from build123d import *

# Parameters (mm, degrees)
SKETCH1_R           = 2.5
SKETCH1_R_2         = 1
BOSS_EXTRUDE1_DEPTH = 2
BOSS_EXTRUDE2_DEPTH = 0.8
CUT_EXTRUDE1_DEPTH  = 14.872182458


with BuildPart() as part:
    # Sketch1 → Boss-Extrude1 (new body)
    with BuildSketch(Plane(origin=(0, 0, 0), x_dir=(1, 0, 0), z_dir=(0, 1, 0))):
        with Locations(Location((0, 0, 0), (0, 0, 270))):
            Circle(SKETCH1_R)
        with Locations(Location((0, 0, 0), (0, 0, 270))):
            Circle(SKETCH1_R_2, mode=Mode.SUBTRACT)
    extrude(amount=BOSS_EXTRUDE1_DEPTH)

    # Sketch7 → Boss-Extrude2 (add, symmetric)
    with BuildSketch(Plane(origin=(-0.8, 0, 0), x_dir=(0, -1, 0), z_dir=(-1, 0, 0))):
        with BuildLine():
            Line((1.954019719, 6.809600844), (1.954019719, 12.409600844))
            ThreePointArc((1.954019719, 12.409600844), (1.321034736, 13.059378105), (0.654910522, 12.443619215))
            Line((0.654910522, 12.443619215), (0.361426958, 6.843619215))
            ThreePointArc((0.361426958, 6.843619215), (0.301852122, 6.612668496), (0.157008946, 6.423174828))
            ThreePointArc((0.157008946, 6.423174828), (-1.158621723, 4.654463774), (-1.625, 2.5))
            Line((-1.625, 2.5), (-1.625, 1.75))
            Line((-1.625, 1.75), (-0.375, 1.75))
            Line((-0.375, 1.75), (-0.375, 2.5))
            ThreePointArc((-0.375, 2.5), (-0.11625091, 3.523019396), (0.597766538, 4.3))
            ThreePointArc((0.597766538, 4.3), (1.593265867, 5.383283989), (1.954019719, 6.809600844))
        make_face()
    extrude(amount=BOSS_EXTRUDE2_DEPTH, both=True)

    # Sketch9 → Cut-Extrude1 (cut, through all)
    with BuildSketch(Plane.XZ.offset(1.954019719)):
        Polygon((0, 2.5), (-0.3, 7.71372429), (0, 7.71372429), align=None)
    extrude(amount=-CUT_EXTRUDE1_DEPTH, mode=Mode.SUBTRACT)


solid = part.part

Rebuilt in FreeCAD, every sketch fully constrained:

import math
import FreeCAD as App
import Part
import Sketcher
from FreeCAD import Vector
Q = App.Units.Quantity


def add_polygon(sketch, points):
    """Adds a closed chain of lines whose ends are joined by coincident constraints."""
    first, n = sketch.GeometryCount, len(points)
    for a, b in zip(points, points[1:] + points[:1]):
        sketch.addGeometry(Part.LineSegment(App.Vector(*a, 0), App.Vector(*b, 0)), False)
    for i in range(n):
        sketch.addConstraint(Sketcher.Constraint("Coincident", first + i, 2, first + (i + 1) % n, 1))

doc = App.newDocument("Part")
body = doc.addObject("PartDesign::Body", "Body")

# Sketch on XZ plane
sketch1 = body.newObject("Sketcher::SketchObject", "Sketch")
sketch1.AttachmentSupport = (doc.getObject("XZ_Plane"), [""])
sketch1.MapMode = "FlatFace"
sketch1.addGeometry([
    Part.Circle(Vector(0, 0, 0), Vector(0, 0, 1), 2.5),
    Part.Circle(Vector(0, 0, 0), Vector(0, 0, 1), 1),
], False)
sketch1.addConstraint([
    Sketcher.Constraint("Coincident", 0, 3, -1, 1),
    Sketcher.Constraint("Coincident", 1, 3, -1, 1),
    Sketcher.Constraint("Diameter", 0, 5.0),
    Sketcher.Constraint("Diameter", 1, 2.0),
])
pad1 = body.newObject("PartDesign::Pad", "Pad")
pad1.Profile = sketch1
pad1.Length = 2
pad1.Reversed = True

# Sketch on YZ plane
sketch2 = body.newObject("Sketcher::SketchObject", "Sketch001")
sketch2.AttachmentSupport = (doc.getObject("YZ_Plane"), [""])
sketch2.MapMode = "FlatFace"
sketch2.AttachmentOffset = App.Placement(Vector(0, 0, -0.8), App.Rotation())
sketch2.addGeometry([
    Part.LineSegment(Vector(-1.95, 6.81, 0), Vector(-1.95, 12.41, 0)),  # 0
    Part.ArcOfCircle(Part.Circle(Vector(-1.3, 12.41, 0), Vector(0, 0, 1), 0.65), math.radians(3), math.radians(180)),  # 1
    Part.LineSegment(Vector(-0.65, 12.44, 0), Vector(-0.36, 6.84, 0)),  # 2
    Part.ArcOfCircle(Part.Circle(Vector(0.24, 6.88, 0), Vector(0, 0, 1), 0.6), math.radians(-177), math.radians(-131)),  # 3
    Part.ArcOfCircle(Part.Circle(Vector(-3.58, 2.5, 0), Vector(0, 0, 1), 5.21), math.radians(0), math.radians(49)),  # 4
    Part.LineSegment(Vector(1.62, 2.5, 0), Vector(1.62, 1.75, 0)),  # 5
    Part.LineSegment(Vector(1.62, 1.75, 0), Vector(0.38, 1.75, 0)),  # 6
    Part.LineSegment(Vector(0.38, 1.75, 0), Vector(0.38, 2.5, 0)),  # 7
    Part.ArcOfCircle(Part.Circle(Vector(-1.78, 2.5, 0), Vector(0, 0, 1), 2.15), math.radians(0), math.radians(57)),  # 8
    Part.ArcOfCircle(Part.Circle(Vector(1.05, 6.81, 0), Vector(0, 0, 1), 3), math.radians(180), math.radians(237)),  # 9
], False)
sketch2.addConstraint([
    Sketcher.Constraint("Tangent", 0, 2, 1, 2),
    Sketcher.Constraint("Tangent", 1, 1, 2, 1),
    Sketcher.Constraint("Tangent", 2, 2, 3, 1),
    Sketcher.Constraint("Tangent", 3, 2, 4, 2),
    Sketcher.Constraint("Tangent", 4, 1, 5, 1),
    Sketcher.Constraint("Coincident", 5, 2, 6, 1),
    Sketcher.Constraint("Coincident", 6, 2, 7, 1),
    Sketcher.Constraint("Tangent", 7, 2, 8, 1),
    Sketcher.Constraint("Tangent", 8, 2, 9, 2),
    Sketcher.Constraint("Tangent", 9, 1, 0, 1),
    Sketcher.Constraint("Vertical", 0),
    Sketcher.Constraint("Vertical", 5),
    Sketcher.Constraint("Horizontal", 6),
    Sketcher.Constraint("Vertical", 7),
    Sketcher.Constraint("Horizontal", 4, 3, 8, 3),
    Sketcher.Constraint("Radius", 9, 3.0),
    Sketcher.Constraint("Radius", 3, 0.6),
    Sketcher.Constraint("Angle", 2, Q("-87 deg")),
    Sketcher.Constraint("Radius", 1, 0.65),
    Sketcher.Constraint("DistanceY", 0, 1, 0, 2, 5.6),
    Sketcher.Constraint("DistanceX", 6, 2, 6, 1, 1.25),
    Sketcher.Constraint("DistanceY", 5, 2, 5, 1, 0.75),
    Sketcher.Constraint("DistanceY", -1, 1, 4, 3, 2.5),
    Sketcher.Constraint("DistanceY", -1, 1, 8, 2, 4.3),
    Sketcher.Constraint("DistanceY", 2, 2, 1, 1, 5.6),
    Sketcher.Constraint("Radius", 4, 5.20953),
    Sketcher.Constraint("DistanceX", -1, 1, 4, 1, 1.625),
])
pad2 = body.newObject("PartDesign::Pad", "Pad001")
pad2.Profile = sketch2
pad2.Length = 1.6
pad2.Midplane = True

# Sketch on XZ plane
sketch3 = body.newObject("Sketcher::SketchObject", "Sketch002")
sketch3.AttachmentSupport = (doc.getObject("XZ_Plane"), [""])
sketch3.MapMode = "FlatFace"
sketch3.AttachmentOffset = App.Placement(Vector(0, 0, 1.95402), App.Rotation())
add_polygon(sketch3, [(-0.3, 7.71), (0, 2.5), (0, 7.71)])  # lines 0-2
sketch3.addConstraint([
    Sketcher.Constraint("Vertical", 1),
    Sketcher.Constraint("Horizontal", 2),
    Sketcher.Constraint("PointOnObject", 0, 2, -2),
    Sketcher.Constraint("DistanceX", 2, 2, 2, 1, 0.3),
    Sketcher.Constraint("DistanceY", -1, 1, 0, 2, 2.5),
    Sketcher.Constraint("Distance", 0, 5.222348),
])
pocket1 = body.newObject("PartDesign::Pocket", "Pocket")
pocket1.Profile = sketch3
pocket1.Type = "ThroughAll"

doc.recompute()
